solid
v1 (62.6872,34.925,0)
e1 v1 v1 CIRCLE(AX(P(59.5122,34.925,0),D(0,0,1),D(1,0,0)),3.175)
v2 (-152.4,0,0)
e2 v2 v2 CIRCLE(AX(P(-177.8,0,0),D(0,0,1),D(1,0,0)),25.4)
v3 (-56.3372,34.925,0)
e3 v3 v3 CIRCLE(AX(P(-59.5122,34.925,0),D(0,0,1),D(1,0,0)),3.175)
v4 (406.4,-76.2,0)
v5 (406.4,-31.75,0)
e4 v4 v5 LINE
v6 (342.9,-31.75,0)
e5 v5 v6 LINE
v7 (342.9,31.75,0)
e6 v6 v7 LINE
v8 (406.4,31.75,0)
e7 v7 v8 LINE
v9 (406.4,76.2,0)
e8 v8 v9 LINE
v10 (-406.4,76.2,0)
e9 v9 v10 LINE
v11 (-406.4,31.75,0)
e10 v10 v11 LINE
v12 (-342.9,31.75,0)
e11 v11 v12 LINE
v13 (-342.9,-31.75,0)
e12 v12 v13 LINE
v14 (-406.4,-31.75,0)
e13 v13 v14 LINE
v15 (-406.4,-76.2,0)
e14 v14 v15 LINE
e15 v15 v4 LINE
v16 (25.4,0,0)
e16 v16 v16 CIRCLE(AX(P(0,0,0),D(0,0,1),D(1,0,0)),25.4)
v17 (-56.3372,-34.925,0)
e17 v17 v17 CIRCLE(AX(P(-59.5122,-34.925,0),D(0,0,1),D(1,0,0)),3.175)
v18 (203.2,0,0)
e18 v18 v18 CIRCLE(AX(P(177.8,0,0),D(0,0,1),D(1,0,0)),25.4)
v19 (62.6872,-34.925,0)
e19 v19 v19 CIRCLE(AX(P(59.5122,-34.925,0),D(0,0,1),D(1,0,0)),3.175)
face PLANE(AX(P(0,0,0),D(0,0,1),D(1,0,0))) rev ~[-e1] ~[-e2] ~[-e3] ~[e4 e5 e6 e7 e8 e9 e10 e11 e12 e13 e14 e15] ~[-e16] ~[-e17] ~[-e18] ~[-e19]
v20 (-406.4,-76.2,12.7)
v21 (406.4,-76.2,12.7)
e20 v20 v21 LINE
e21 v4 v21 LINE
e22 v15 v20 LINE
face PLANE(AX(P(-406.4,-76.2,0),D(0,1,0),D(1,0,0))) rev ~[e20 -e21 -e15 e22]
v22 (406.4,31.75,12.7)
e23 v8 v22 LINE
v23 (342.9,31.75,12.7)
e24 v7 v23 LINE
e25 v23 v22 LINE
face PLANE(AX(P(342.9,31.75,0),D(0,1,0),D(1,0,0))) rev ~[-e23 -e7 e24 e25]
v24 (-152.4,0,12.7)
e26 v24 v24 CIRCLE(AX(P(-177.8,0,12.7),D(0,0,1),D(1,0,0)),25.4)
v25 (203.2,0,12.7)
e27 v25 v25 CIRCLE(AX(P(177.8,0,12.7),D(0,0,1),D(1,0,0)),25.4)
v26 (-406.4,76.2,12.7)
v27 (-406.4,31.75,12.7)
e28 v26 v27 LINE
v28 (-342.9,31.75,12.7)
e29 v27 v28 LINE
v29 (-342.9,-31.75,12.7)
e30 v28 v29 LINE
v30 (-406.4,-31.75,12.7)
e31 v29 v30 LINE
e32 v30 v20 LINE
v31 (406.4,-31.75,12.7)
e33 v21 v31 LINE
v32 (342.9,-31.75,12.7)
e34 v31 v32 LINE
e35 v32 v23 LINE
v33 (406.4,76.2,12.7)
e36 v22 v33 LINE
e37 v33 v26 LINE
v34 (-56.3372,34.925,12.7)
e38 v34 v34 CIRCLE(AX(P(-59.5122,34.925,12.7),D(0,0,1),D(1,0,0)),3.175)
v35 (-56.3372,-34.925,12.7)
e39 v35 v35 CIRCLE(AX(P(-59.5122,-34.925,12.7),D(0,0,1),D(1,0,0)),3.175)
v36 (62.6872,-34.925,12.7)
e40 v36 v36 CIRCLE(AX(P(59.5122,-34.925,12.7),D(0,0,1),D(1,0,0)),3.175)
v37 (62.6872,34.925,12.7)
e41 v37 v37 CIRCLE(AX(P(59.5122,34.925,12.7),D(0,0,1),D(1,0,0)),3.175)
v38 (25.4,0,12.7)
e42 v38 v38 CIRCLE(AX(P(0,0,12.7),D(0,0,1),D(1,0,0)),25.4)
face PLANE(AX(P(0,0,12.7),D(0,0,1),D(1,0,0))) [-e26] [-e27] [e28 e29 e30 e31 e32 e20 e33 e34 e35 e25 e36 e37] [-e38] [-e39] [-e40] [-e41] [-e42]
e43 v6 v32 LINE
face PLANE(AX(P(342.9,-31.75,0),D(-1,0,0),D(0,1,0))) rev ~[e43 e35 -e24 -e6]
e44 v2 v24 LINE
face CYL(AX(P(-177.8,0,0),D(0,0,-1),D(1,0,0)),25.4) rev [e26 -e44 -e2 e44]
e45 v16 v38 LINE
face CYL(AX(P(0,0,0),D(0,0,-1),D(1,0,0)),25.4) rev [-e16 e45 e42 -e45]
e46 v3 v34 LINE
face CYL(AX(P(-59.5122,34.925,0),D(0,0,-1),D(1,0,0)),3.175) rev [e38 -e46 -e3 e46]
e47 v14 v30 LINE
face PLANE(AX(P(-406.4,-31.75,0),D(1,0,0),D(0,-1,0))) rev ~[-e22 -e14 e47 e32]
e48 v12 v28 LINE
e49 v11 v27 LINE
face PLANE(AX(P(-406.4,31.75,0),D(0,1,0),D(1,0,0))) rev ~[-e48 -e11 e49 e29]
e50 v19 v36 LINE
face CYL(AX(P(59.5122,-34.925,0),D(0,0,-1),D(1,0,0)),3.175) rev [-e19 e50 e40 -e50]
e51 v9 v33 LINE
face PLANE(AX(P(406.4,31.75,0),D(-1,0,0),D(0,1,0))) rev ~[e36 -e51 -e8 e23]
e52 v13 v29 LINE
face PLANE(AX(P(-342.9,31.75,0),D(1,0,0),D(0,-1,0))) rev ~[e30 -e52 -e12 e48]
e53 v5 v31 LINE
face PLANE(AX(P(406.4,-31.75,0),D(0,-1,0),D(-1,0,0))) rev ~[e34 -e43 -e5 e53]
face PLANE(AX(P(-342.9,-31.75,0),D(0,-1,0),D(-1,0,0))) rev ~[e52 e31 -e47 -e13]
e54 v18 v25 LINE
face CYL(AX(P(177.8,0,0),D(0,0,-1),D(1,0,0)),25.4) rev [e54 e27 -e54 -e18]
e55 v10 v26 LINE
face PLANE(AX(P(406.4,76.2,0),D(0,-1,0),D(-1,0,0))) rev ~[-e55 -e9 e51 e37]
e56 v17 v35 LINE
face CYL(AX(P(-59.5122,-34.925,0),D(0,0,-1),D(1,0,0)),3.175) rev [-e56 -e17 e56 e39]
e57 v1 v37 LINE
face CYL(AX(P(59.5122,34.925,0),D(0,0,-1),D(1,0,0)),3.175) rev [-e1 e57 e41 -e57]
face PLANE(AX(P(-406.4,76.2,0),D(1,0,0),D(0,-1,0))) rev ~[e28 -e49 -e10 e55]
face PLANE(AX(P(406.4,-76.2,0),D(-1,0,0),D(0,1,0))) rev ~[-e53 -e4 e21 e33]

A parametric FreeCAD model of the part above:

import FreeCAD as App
import Part
import Sketcher
from FreeCAD import Vector
Q = App.Units.Quantity

doc = App.newDocument("Part")
body = doc.addObject("PartDesign::Body", "Body")

sketch1 = body.newObject("Sketcher::SketchObject", "Sketch")
sketch1.AttachmentSupport = (doc.getObject("XY_Plane"), [""])
sketch1.MapMode = "FlatFace"
sketch1.addGeometry(Part.LineSegment(Vector(406.4, 76.2, 0), Vector(-406.4, 76.2, 0)), False)
sketch1.addGeometry(Part.LineSegment(Vector(-406.4, 76.2, 0), Vector(-406.4, 31.8, 0)), False)
sketch1.addGeometry(Part.LineSegment(Vector(-406.4, 31.8, 0), Vector(-342.9, 31.8, 0)), False)
sketch1.addGeometry(Part.LineSegment(Vector(-342.9, 31.8, 0), Vector(-342.9, -31.8, 0)), False)
sketch1.addGeometry(Part.LineSegment(Vector(-342.9, -31.8, 0), Vector(-406.4, -31.8, 0)), False)
sketch1.addGeometry(Part.LineSegment(Vector(-406.4, -31.8, 0), Vector(-406.4, -76.2, 0)), False)
sketch1.addGeometry(Part.LineSegment(Vector(-406.4, -76.2, 0), Vector(406.4, -76.2, 0)), False)
sketch1.addGeometry(Part.LineSegment(Vector(406.4, -76.2, 0), Vector(406.4, -31.8, 0)), False)
sketch1.addGeometry(Part.LineSegment(Vector(406.4, -31.8, 0), Vector(342.9, -31.8, 0)), False)
sketch1.addGeometry(Part.LineSegment(Vector(342.9, -31.8, 0), Vector(342.9, 31.8, 0)), False)
sketch1.addGeometry(Part.LineSegment(Vector(342.9, 31.8, 0), Vector(406.4, 31.8, 0)), False)
sketch1.addGeometry(Part.LineSegment(Vector(406.4, 31.8, 0), Vector(406.4, 76.2, 0)), False)
sketch1.addGeometry(Part.Circle(Vector(-59.5, -34.9, 0), Vector(0, 0, 1), 3.2), False)
sketch1.addGeometry(Part.Circle(Vector(59.5, -34.9, 0), Vector(0, 0, 1), 3.2), False)
sketch1.addGeometry(Part.Circle(Vector(-177.8, 0, 0), Vector(0, 0, 1), 25.4), False)
sketch1.addGeometry(Part.Circle(Vector(-59.5, 34.9, 0), Vector(0, 0, 1), 3.2), False)
sketch1.addGeometry(Part.Circle(Vector(0, 0, 0), Vector(0, 0, 1), 25.4), False)
sketch1.addGeometry(Part.Circle(Vector(177.8, 0, 0), Vector(0, 0, 1), 25.4), False)
sketch1.addGeometry(Part.Circle(Vector(59.5, 34.9, 0), Vector(0, 0, 1), 3.2), False)
sketch1.addConstraint(Sketcher.Constraint("Coincident", 0, 2, 1, 1))
sketch1.addConstraint(Sketcher.Constraint("Coincident", 1, 2, 2, 1))
sketch1.addConstraint(Sketcher.Constraint("Coincident", 2, 2, 3, 1))
sketch1.addConstraint(Sketcher.Constraint("Coincident", 3, 2, 4, 1))
sketch1.addConstraint(Sketcher.Constraint("Coincident", 4, 2, 5, 1))
sketch1.addConstraint(Sketcher.Constraint("Coincident", 5, 2, 6, 1))
sketch1.addConstraint(Sketcher.Constraint("Coincident", 6, 2, 7, 1))
sketch1.addConstraint(Sketcher.Constraint("Coincident", 7, 2, 8, 1))
sketch1.addConstraint(Sketcher.Constraint("Coincident", 8, 2, 9, 1))
sketch1.addConstraint(Sketcher.Constraint("Coincident", 9, 2, 10, 1))
sketch1.addConstraint(Sketcher.Constraint("Coincident", 10, 2, 11, 1))
sketch1.addConstraint(Sketcher.Constraint("Coincident", 11, 2, 0, 1))
sketch1.addConstraint(Sketcher.Constraint("Horizontal", 0))
sketch1.addConstraint(Sketcher.Constraint("Vertical", 1))
sketch1.addConstraint(Sketcher.Constraint("Horizontal", 2))
sketch1.addConstraint(Sketcher.Constraint("Vertical", 3))
sketch1.addConstraint(Sketcher.Constraint("Horizontal", 4))
sketch1.addConstraint(Sketcher.Constraint("Vertical", 5))
sketch1.addConstraint(Sketcher.Constraint("Horizontal", 6))
sketch1.addConstraint(Sketcher.Constraint("Vertical", 7))
sketch1.addConstraint(Sketcher.Constraint("Horizontal", 8))
sketch1.addConstraint(Sketcher.Constraint("Vertical", 9))
sketch1.addConstraint(Sketcher.Constraint("Horizontal", 10))
sketch1.addConstraint(Sketcher.Constraint("Vertical", 11))
sketch1.addConstraint(Sketcher.Constraint("Coincident", 16, 3, -1, 1))
sketch1.addConstraint(Sketcher.Constraint("Equal", 12, 13))
sketch1.addConstraint(Sketcher.Constraint("Equal", 13, 15))
sketch1.addConstraint(Sketcher.Constraint("Equal", 14, 16))
sketch1.addConstraint(Sketcher.Constraint("Equal", 16, 17))
sketch1.addConstraint(Sketcher.Constraint("Equal", 15, 18))
sketch1.addConstraint(Sketcher.Constraint("Symmetric", 13, 3, 15, 3, -1, 1))
sketch1.addConstraint(Sketcher.Constraint("Symmetric", 14, 3, 17, 3, -1, 1))
sketch1.addConstraint(Sketcher.Constraint("Symmetric", 12, 3, 18, 3, -1, 1))
sketch1.addConstraint(Sketcher.Constraint("Symmetric", 0, 2, 6, 2, -1, 1))
sketch1.addConstraint(Sketcher.Constraint("Symmetric", 2, 2, 8, 2, -1, 1))
sketch1.addConstraint(Sketcher.Constraint("Symmetric", 4, 2, 10, 2, -1, 1))
sketch1.addConstraint(Sketcher.Constraint("Symmetric", 12, 3, 13, 3, -2))
sketch1.addConstraint(Sketcher.Constraint("Symmetric", 4, 2, 7, 2, -2))
sketch1.addConstraint(Sketcher.Constraint("PointOnObject", 14, 3, -1))
sketch1.addConstraint(Sketcher.Constraint("Equal", 10, 3))
sketch1.addConstraint(Sketcher.Constraint("Diameter", 14, Q("2 in")))
sketch1.addConstraint(Sketcher.Constraint("Diameter", 12, Q("0.25 in")))
sketch1.addConstraint(Sketcher.Constraint("DistanceX", 0, 2, 0, 1, Q("32 in")))
sketch1.addConstraint(Sketcher.Constraint("DistanceX", 2, 1, 2, 2, Q("2.5 in")))
sketch1.addConstraint(Sketcher.Constraint("DistanceX", 14, 3, -1, 1, Q("7 in")))
sketch1.addConstraint(Sketcher.Constraint("DistanceY", -1, 1, 0, 2, Q("3 in")))
sketch1.addConstraint(Sketcher.Constraint("DistanceY", 12, 3, 15, 3, Q("2.75 in")))
sketch1.addConstraint(Sketcher.Constraint("DistanceX", 12, 3, -1, 1, Q("2.343 in")))
pad1 = body.newObject("PartDesign::Pad", "Pad")
pad1.Profile = sketch1
pad1.Length = Q("0.5 in")

doc.recompute()
